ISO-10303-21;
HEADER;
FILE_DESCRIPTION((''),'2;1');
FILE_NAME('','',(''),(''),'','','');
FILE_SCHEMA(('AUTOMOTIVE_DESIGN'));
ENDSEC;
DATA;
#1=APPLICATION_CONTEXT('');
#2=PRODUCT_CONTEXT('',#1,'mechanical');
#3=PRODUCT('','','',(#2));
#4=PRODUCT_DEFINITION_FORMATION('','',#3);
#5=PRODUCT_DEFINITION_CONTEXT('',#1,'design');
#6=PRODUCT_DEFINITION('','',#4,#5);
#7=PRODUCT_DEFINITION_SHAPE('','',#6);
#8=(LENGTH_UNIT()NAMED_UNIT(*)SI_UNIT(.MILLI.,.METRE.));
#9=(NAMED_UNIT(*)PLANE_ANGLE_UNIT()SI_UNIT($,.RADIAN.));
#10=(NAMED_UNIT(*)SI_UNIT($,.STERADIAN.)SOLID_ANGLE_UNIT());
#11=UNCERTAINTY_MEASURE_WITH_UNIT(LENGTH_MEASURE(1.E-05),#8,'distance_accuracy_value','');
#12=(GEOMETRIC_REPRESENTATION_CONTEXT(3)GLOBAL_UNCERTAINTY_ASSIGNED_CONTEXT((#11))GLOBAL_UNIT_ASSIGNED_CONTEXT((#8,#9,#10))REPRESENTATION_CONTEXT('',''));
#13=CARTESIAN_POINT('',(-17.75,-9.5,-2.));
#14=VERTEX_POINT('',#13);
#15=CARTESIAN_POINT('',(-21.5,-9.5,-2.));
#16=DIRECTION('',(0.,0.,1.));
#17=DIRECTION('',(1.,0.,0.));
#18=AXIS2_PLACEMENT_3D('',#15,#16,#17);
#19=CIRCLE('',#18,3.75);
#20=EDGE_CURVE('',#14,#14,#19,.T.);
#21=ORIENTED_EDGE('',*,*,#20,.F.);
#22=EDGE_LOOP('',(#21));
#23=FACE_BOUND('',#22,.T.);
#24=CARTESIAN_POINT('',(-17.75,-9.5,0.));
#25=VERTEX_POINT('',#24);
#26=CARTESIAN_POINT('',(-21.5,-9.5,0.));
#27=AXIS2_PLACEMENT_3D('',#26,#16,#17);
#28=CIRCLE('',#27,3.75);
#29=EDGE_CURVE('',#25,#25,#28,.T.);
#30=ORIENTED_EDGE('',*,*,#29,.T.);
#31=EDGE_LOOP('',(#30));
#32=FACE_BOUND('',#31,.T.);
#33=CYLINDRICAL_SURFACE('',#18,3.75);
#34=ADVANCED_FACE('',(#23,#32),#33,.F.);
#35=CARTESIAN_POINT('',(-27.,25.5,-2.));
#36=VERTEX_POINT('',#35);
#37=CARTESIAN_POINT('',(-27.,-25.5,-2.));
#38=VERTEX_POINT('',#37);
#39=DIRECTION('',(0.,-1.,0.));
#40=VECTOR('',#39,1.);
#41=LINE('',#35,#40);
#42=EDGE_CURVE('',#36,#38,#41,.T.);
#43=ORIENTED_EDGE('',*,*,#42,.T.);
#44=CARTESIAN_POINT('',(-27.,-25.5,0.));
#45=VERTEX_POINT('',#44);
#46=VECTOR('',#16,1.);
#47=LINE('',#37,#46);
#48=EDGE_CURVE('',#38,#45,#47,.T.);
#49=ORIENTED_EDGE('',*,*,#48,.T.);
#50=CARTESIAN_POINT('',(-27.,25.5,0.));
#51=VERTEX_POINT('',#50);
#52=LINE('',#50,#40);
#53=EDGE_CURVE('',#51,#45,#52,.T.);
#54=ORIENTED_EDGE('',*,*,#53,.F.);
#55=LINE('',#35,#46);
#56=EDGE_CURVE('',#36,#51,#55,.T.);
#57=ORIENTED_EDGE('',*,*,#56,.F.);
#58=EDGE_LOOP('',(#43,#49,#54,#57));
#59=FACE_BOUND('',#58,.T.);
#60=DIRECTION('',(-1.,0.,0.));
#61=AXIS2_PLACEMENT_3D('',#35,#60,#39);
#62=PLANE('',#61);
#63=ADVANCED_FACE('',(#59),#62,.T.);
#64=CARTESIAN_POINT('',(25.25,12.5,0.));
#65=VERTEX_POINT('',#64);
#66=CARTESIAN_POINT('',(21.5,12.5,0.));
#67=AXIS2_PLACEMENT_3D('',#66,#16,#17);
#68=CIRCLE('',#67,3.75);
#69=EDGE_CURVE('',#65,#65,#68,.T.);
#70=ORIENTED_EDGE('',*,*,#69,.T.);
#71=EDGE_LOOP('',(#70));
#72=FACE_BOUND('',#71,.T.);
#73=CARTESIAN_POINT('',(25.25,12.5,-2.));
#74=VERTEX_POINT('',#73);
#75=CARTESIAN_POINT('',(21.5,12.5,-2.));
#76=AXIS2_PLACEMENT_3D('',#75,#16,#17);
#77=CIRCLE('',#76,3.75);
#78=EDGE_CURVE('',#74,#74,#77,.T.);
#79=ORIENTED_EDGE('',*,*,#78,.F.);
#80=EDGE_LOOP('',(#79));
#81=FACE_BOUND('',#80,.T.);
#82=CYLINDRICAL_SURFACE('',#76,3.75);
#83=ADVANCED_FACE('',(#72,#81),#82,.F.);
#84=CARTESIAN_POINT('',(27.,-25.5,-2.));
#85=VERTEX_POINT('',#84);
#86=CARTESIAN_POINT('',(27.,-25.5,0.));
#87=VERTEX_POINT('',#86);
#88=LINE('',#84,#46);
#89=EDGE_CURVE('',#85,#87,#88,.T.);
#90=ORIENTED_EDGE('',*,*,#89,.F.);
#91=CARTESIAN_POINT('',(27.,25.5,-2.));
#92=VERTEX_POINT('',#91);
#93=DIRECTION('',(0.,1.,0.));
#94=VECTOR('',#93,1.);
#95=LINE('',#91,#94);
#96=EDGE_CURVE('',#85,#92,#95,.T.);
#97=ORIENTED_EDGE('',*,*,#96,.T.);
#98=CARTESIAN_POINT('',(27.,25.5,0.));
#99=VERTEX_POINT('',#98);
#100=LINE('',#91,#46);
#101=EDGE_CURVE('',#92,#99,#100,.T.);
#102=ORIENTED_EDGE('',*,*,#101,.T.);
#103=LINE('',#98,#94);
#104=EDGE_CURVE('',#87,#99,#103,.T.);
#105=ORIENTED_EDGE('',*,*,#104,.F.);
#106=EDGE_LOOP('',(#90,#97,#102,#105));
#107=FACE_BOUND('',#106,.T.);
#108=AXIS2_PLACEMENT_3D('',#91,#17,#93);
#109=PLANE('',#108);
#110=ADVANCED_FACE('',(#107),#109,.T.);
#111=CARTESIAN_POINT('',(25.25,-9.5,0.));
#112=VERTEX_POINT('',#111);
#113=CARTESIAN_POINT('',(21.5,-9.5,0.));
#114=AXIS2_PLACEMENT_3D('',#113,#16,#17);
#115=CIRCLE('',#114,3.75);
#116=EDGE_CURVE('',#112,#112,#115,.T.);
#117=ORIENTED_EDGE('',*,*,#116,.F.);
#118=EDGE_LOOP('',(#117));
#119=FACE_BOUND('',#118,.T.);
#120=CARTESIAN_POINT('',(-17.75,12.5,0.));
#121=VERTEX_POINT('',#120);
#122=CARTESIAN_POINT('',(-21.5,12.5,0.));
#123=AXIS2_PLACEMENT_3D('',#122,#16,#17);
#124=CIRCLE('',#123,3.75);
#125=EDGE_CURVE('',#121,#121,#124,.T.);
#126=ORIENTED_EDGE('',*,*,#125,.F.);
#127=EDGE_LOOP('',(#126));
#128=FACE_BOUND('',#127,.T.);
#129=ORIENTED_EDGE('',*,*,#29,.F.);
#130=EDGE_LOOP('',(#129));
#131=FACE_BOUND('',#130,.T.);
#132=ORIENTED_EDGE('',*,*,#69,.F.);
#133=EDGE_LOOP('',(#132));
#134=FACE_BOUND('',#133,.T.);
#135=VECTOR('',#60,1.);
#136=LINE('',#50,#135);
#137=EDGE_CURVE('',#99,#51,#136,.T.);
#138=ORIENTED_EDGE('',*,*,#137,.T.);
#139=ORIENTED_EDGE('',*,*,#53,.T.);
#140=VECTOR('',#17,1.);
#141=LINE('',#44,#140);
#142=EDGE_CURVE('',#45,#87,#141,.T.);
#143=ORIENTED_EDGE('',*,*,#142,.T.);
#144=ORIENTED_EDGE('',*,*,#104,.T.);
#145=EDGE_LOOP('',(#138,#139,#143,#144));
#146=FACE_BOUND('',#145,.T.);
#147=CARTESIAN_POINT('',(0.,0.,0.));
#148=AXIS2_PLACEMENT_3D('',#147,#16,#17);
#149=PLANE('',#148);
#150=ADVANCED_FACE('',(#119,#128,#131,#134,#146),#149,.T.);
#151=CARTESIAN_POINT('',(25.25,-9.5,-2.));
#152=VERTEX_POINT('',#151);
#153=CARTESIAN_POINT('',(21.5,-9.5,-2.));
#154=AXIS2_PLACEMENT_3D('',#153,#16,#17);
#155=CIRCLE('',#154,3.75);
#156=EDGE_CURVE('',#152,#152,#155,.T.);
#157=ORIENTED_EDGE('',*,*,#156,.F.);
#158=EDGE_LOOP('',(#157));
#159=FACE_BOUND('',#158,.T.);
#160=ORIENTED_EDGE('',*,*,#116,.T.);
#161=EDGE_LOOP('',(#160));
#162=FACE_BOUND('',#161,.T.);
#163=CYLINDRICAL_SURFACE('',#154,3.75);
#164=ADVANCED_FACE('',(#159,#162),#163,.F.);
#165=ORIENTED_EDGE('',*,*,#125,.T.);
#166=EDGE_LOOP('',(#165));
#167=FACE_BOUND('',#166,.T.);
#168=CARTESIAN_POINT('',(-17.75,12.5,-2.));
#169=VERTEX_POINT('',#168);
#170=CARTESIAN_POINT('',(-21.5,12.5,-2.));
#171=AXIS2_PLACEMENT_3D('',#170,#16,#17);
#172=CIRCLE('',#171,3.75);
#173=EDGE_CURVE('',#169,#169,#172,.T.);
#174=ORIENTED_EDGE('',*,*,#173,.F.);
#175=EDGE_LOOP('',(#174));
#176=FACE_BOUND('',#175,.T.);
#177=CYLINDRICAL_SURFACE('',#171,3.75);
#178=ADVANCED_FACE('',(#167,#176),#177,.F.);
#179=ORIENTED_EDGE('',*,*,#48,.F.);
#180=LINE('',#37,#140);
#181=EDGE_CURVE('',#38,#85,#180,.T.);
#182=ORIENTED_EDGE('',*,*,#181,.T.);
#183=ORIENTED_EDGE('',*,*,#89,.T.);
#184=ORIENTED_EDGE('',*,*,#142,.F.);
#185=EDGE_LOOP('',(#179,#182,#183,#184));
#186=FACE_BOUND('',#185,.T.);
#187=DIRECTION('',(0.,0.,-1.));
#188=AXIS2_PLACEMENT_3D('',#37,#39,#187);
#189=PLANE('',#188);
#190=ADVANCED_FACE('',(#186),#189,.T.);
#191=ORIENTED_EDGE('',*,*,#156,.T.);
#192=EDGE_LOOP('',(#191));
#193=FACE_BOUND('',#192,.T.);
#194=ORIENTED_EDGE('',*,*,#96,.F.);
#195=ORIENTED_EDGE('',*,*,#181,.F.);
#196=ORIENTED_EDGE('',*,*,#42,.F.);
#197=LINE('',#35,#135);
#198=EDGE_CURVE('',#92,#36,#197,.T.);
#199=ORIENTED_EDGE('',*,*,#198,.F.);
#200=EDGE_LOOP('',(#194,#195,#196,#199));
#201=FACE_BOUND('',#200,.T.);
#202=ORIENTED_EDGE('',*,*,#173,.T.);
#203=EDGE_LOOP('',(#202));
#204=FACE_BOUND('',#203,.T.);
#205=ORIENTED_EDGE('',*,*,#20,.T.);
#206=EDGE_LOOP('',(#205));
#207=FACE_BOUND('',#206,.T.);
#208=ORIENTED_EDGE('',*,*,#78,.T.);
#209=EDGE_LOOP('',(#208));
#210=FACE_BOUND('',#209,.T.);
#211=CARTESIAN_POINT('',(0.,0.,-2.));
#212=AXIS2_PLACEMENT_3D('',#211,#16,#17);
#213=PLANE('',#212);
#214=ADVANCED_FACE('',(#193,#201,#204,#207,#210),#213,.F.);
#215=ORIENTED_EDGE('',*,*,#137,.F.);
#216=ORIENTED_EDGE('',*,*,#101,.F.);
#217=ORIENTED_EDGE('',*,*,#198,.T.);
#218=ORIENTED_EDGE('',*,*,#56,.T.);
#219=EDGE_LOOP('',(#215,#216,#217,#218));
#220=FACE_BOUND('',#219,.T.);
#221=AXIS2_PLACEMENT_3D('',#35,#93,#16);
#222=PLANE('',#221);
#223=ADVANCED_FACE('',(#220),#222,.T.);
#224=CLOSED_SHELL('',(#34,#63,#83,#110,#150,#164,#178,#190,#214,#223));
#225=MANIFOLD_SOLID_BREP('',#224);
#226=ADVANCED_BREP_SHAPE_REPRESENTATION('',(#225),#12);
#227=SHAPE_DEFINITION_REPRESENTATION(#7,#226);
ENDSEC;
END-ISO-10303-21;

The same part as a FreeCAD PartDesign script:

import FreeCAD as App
import Part
import Sketcher

doc = App.newDocument("Part")
params = doc.addObject("Spreadsheet::Sheet", "Params")
for row, (alias, value) in enumerate([
    ("sketch1_diameter", "7.5 mm"),
    ("sketch1_width", "54 mm"),
    ("sketch1_height", "51 mm"),
    ("pad1_length", "2 mm"),
], start=1):
    params.set(f"A{row}", alias)
    params.set(f"B{row}", "=" + value)
    params.setAlias(f"B{row}", alias)

body = doc.addObject("PartDesign::Body", "Body")

# Sketch on XY plane
sketch1 = body.newObject("Sketcher::SketchObject", "Sketch")
sketch1.AttachmentSupport = (doc.getObject("XY_Plane"), [""])
sketch1.MapMode = "FlatFace"
sketch1.addGeometry([
    Part.LineSegment(App.Vector(-27, 25.5, 0), App.Vector(-27, -25.5, 0)),  # 0
    Part.LineSegment(App.Vector(-27, -25.5, 0), App.Vector(27, -25.5, 0)),  # 1
    Part.LineSegment(App.Vector(27, -25.5, 0), App.Vector(27, 25.5, 0)),  # 2
    Part.LineSegment(App.Vector(27, 25.5, 0), App.Vector(-27, 25.5, 0)),  # 3
    Part.Circle(App.Vector(-21.5, -9.5, 0), App.Vector(0, 0, 1), 3.8),  # 4
    Part.Circle(App.Vector(21.5, -9.5, 0), App.Vector(0, 0, 1), 3.8),  # 5
    Part.Circle(App.Vector(-21.5, 12.5, 0), App.Vector(0, 0, 1), 3.8),  # 6
    Part.Circle(App.Vector(21.5, 12.5, 0), App.Vector(0, 0, 1), 3.8),  # 7
], False)
sketch1.addConstraint([
    Sketcher.Constraint("Coincident", 0, 2, 1, 1),
    Sketcher.Constraint("Coincident", 1, 2, 2, 1),
    Sketcher.Constraint("Coincident", 2, 2, 3, 1),
    Sketcher.Constraint("Coincident", 3, 2, 0, 1),
    Sketcher.Constraint("Vertical", 0),
    Sketcher.Constraint("Horizontal", 1),
    Sketcher.Constraint("Vertical", 2),
    Sketcher.Constraint("Horizontal", 3),
    Sketcher.Constraint("Equal", 4, 5),
    Sketcher.Constraint("Equal", 5, 6),
    Sketcher.Constraint("Equal", 6, 7),
    Sketcher.Constraint("Symmetric", 0, 2, 2, 2, -1, 1),
    Sketcher.Constraint("Symmetric", 4, 3, 5, 3, -2),
    Sketcher.Constraint("Symmetric", 6, 3, 7, 3, -2),
    Sketcher.Constraint("Vertical", 4, 3, 6, 3),
    Sketcher.Constraint("Diameter", 4, 7.5),
    Sketcher.Constraint("DistanceX", 1, 1, 1, 2, 54.0),
    Sketcher.Constraint("DistanceY", 0, 2, 0, 1, 51.0),
    Sketcher.Constraint("DistanceX", 4, 3, 5, 3, 43.0),
    Sketcher.Constraint("DistanceY", 4, 3, 6, 3, 22.0),
    Sketcher.Constraint("DistanceY", 0, 2, 4, 3, 16.0),
])
sketch1.setExpression("Constraints[15]", "Params.sketch1_diameter")
sketch1.setExpression("Constraints[16]", "Params.sketch1_width")
sketch1.setExpression("Constraints[17]", "Params.sketch1_height")
pad1 = body.newObject("PartDesign::Pad", "Pad")
pad1.Profile = sketch1
pad1.setExpression("Length", "Params.pad1_length")
pad1.Reversed = True

doc.recompute()
